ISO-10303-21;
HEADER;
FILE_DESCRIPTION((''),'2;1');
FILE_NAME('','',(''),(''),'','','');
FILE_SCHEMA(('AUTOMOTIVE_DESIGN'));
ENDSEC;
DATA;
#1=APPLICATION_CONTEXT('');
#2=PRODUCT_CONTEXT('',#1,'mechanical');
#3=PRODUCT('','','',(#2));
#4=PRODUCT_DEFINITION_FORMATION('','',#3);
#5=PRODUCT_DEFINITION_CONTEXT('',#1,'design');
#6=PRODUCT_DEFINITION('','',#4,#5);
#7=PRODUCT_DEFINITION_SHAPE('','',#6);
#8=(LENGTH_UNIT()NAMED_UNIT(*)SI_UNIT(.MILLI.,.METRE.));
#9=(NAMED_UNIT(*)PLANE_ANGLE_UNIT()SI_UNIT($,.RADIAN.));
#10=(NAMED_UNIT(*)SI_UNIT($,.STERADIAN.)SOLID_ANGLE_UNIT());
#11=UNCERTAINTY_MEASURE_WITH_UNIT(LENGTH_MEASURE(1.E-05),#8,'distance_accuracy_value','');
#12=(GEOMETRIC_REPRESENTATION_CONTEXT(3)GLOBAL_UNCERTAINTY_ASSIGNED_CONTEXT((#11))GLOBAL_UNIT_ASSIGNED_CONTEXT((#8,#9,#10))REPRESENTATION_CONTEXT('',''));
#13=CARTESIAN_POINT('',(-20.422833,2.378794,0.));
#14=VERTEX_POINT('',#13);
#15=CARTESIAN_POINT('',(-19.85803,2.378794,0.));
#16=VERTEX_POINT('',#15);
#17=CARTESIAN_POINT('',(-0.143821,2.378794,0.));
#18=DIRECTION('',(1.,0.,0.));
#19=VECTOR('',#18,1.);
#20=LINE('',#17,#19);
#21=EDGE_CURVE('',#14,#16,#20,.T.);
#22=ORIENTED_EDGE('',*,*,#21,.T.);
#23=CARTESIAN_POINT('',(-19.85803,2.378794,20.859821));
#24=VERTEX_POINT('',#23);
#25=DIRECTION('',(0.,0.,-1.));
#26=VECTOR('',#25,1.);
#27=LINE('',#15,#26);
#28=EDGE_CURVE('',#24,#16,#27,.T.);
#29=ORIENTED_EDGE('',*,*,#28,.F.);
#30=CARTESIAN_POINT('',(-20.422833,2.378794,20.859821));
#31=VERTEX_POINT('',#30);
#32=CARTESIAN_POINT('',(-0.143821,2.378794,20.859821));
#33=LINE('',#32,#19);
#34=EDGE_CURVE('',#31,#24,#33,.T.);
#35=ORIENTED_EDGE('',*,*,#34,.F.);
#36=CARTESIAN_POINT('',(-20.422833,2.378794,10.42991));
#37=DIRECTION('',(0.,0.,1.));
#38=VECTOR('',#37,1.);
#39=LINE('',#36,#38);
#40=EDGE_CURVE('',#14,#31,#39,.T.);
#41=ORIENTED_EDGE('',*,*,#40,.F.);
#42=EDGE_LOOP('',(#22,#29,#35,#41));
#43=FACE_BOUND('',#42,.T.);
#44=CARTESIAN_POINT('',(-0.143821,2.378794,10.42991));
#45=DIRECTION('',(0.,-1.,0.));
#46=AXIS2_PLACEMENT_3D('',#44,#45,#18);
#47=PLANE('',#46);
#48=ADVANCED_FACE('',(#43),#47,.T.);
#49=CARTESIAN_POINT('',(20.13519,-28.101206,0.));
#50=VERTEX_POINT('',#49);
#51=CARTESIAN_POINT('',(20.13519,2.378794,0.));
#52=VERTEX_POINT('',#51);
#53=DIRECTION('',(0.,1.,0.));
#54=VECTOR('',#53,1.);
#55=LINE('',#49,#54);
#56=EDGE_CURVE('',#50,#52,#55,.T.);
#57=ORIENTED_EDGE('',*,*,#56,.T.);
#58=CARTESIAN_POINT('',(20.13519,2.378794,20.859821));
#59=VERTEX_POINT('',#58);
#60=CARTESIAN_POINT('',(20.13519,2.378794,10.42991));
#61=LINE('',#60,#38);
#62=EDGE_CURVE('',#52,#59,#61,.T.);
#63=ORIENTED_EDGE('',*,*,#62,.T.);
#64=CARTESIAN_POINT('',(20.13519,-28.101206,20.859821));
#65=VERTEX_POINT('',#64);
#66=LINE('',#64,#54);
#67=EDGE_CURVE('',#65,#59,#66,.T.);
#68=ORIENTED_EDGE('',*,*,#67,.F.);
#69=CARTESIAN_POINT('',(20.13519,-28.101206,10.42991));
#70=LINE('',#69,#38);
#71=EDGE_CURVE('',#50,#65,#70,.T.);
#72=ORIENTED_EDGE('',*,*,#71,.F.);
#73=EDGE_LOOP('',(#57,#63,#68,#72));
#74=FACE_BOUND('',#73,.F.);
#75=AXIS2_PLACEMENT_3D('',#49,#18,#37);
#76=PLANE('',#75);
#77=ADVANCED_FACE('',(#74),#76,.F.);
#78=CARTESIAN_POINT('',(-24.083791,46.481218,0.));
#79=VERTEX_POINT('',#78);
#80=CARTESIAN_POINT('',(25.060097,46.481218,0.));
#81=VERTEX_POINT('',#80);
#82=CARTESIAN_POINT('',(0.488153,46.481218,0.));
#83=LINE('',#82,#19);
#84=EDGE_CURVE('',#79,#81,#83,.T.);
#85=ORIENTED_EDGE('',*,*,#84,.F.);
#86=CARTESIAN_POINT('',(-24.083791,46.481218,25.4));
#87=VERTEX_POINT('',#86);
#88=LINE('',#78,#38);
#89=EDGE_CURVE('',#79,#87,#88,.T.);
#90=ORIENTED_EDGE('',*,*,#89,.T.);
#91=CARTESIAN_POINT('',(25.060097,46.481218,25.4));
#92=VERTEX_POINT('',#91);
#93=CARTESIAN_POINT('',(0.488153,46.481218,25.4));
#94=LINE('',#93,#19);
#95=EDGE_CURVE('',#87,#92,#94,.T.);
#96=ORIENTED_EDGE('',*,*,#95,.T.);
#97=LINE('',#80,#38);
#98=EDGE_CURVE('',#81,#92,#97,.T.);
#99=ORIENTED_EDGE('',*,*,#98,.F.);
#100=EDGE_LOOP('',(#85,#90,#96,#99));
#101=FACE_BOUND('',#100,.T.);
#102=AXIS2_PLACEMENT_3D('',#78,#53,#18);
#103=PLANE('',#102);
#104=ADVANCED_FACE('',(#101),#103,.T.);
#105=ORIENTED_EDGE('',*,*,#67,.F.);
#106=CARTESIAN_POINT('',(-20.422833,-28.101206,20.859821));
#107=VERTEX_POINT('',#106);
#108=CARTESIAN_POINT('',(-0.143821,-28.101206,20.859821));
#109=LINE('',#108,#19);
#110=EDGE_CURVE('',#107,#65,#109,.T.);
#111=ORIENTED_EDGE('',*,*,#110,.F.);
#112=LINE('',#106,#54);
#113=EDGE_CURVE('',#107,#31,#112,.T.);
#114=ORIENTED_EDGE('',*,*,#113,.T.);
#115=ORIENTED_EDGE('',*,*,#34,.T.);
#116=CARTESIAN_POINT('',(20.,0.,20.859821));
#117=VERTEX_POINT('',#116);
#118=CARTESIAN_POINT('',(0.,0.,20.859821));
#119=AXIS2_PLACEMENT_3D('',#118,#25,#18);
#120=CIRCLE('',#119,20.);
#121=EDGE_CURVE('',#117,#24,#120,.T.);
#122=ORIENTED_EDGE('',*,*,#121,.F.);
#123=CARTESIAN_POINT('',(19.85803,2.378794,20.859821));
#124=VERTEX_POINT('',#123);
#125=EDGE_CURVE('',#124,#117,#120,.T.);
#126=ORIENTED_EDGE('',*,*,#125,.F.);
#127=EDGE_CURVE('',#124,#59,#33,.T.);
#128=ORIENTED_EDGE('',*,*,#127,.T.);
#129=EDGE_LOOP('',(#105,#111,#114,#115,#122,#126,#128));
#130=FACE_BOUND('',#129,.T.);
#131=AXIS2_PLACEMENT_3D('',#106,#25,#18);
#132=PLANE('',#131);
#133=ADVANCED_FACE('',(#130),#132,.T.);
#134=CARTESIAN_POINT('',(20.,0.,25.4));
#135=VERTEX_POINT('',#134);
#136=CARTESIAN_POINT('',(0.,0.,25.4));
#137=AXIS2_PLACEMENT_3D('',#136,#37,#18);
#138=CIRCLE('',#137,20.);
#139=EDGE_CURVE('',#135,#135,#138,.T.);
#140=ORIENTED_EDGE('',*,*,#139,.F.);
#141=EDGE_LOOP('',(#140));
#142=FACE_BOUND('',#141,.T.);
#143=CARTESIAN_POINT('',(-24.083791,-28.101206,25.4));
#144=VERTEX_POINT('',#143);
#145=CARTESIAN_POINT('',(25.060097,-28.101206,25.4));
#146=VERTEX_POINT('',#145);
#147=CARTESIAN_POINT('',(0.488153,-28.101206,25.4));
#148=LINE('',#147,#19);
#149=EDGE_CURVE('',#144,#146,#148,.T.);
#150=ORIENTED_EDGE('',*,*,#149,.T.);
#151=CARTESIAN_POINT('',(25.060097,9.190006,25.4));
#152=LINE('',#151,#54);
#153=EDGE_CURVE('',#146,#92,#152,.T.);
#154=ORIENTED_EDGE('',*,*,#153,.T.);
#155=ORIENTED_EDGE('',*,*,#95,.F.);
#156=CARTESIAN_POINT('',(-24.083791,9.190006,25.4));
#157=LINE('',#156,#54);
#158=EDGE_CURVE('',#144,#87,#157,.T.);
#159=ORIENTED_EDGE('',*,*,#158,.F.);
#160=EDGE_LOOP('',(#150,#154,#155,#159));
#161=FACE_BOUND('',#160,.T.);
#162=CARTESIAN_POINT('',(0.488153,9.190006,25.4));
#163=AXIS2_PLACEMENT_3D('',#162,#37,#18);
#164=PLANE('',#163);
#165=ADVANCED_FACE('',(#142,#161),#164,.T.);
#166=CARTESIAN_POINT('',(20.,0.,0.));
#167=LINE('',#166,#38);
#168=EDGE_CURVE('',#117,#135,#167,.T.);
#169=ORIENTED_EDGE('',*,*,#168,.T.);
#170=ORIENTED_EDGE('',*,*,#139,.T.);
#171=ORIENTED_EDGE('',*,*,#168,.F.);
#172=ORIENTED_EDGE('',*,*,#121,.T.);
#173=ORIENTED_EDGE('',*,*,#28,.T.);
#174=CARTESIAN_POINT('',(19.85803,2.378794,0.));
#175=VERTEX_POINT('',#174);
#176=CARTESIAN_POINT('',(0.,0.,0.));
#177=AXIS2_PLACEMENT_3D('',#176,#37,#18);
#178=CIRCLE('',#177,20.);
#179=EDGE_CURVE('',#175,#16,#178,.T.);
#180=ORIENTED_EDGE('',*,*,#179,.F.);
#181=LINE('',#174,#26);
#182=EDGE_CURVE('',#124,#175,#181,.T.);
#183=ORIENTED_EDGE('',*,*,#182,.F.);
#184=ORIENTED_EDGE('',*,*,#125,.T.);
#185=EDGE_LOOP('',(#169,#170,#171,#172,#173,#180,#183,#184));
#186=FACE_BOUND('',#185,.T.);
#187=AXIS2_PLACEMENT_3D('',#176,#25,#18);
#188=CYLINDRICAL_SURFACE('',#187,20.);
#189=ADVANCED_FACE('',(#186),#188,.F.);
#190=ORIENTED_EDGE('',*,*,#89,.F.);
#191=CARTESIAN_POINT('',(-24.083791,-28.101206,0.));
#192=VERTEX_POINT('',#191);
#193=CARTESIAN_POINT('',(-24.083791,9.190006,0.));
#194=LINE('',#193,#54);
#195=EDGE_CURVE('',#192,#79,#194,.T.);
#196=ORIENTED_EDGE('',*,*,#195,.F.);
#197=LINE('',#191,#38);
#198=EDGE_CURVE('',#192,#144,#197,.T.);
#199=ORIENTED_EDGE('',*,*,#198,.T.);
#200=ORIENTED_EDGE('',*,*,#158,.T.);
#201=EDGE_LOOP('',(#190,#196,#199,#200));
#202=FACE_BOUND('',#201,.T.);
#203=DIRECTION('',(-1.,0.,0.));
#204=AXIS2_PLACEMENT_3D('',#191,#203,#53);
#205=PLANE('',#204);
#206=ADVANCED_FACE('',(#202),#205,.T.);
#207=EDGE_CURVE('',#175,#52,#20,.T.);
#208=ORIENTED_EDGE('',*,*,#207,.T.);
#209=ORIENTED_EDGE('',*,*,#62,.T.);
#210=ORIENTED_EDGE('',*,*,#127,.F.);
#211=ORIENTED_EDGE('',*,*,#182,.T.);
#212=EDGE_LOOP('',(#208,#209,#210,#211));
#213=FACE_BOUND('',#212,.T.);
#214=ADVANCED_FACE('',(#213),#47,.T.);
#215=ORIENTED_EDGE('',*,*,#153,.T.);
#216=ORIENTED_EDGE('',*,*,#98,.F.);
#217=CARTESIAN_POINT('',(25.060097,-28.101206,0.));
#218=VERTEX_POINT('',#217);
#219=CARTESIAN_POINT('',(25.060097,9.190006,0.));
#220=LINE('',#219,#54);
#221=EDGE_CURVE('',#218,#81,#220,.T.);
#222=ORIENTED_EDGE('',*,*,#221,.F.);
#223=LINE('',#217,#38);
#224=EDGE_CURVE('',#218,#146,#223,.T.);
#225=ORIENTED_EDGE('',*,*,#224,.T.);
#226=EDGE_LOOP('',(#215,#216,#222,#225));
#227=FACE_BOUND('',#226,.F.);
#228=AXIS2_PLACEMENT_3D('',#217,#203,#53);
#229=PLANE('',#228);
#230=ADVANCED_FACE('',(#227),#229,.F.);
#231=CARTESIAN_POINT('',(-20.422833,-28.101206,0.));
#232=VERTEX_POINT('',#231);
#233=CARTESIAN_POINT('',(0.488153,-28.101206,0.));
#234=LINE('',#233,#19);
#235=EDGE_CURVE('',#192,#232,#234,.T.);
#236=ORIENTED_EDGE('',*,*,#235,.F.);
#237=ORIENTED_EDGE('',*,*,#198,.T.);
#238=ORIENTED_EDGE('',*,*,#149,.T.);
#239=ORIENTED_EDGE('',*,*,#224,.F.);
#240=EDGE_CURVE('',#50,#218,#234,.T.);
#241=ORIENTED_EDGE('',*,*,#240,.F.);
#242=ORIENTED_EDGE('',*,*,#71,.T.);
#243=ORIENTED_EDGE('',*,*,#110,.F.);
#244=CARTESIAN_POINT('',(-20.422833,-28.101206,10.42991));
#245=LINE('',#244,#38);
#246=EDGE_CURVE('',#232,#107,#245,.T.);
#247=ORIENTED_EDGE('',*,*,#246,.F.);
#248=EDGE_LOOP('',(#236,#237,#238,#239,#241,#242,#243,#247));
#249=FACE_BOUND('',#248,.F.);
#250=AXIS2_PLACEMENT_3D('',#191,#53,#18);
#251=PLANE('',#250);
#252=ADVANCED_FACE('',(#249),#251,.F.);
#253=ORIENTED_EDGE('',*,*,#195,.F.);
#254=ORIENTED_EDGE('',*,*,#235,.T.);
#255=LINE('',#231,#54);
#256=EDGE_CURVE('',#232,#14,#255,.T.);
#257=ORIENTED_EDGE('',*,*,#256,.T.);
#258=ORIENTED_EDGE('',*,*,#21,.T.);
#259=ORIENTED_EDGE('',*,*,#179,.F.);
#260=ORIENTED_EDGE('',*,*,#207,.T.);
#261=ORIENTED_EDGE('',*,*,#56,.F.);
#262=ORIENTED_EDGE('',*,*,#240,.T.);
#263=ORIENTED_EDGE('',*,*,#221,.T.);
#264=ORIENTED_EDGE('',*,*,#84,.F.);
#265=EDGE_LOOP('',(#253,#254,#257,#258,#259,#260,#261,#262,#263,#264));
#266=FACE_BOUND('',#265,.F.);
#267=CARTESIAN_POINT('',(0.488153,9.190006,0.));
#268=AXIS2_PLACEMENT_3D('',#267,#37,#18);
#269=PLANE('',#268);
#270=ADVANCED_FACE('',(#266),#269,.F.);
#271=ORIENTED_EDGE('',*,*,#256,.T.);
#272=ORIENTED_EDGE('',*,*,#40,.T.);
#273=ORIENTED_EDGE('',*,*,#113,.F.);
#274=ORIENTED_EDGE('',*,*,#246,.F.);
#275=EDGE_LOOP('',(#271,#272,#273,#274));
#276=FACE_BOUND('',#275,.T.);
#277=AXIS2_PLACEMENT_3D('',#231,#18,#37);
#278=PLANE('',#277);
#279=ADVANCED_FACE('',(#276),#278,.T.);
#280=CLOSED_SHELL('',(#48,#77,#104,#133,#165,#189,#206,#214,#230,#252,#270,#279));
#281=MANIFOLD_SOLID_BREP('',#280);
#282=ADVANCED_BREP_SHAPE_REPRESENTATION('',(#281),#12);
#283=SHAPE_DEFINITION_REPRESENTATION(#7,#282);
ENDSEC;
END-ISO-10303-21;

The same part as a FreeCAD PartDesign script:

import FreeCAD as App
import Part
import Sketcher
from FreeCAD import Vector
Q = App.Units.Quantity

doc = App.newDocument("Part")
body = doc.addObject("PartDesign::Body", "Body")

# Sketch on XY plane
sketch1 = body.newObject("Sketcher::SketchObject", "Sketch")
sketch1.AttachmentSupport = (doc.getObject("XY_Plane"), [""])
sketch1.MapMode = "FlatFace"
sketch1.addGeometry([
    Part.LineSegment(Vector(-24, 46, 0), Vector(-24, -28, 0)),  # 0
    Part.LineSegment(Vector(-24, -28, 0), Vector(25, -28, 0)),  # 1
    Part.LineSegment(Vector(25, -28, 0), Vector(25, 46, 0)),  # 2
    Part.LineSegment(Vector(25, 46, 0), Vector(-24, 46, 0)),  # 3
    Part.Circle(Vector(0, 0, 0), Vector(0, 0, 1), 20),  # 4
], False)
sketch1.addConstraint([
    Sketcher.Constraint("Coincident", 0, 2, 1, 1),
    Sketcher.Constraint("Coincident", 1, 2, 2, 1),
    Sketcher.Constraint("Coincident", 2, 2, 3, 1),
    Sketcher.Constraint("Coincident", 3, 2, 0, 1),
    Sketcher.Constraint("Vertical", 0),
    Sketcher.Constraint("Horizontal", 1),
    Sketcher.Constraint("Vertical", 2),
    Sketcher.Constraint("Horizontal", 3),
    Sketcher.Constraint("Coincident", 4, 3, -1, 1),
    Sketcher.Constraint("Diameter", 4, 40.0),
    Sketcher.Constraint("DistanceX", 1, 1, 1, 2, 49.143888),
    Sketcher.Constraint("DistanceY", 0, 2, 0, 1, 74.582424),
    Sketcher.Constraint("DistanceX", 0, 2, -1, 1, 24.083791),
    Sketcher.Constraint("DistanceY", -1, 1, 2, 2, 46.481218),
])
pad1 = body.newObject("PartDesign::Pad", "Pad")
pad1.Profile = sketch1
pad1.Length = Q("1 in")

# Sketch on XZ plane
sketch2 = body.newObject("Sketcher::SketchObject", "Sketch001")
sketch2.AttachmentSupport = (doc.getObject("XZ_Plane"), [""])
sketch2.MapMode = "FlatFace"
sketch2.AttachmentOffset = App.Placement(Vector(0, 0, 28.101206), App.Rotation())
sketch2.addGeometry([
    Part.LineSegment(Vector(-20, 21, 0), Vector(-20, 0, 0)),
    Part.LineSegment(Vector(-20, 0, 0), Vector(20, 0, 0)),
    Part.LineSegment(Vector(20, 0, 0), Vector(20, 21, 0)),
    Part.LineSegment(Vector(20, 21, 0), Vector(-20, 21, 0)),
], False)
sketch2.addConstraint([
    Sketcher.Constraint("Coincident", 0, 2, 1, 1),
    Sketcher.Constraint("Coincident", 1, 2, 2, 1),
    Sketcher.Constraint("Coincident", 2, 2, 3, 1),
    Sketcher.Constraint("Coincident", 3, 2, 0, 1),
    Sketcher.Constraint("Vertical", 0),
    Sketcher.Constraint("Horizontal", 1),
    Sketcher.Constraint("Vertical", 2),
    Sketcher.Constraint("Horizontal", 3),
    Sketcher.Constraint("PointOnObject", 0, 2, -1),
    Sketcher.Constraint("DistanceY", 0, 2, 0, 1, 20.859821),
    Sketcher.Constraint("DistanceX", 1, 1, 1, 2, 40.558023),
    Sketcher.Constraint("DistanceX", -1, 1, 1, 2, 20.13519),
])
pocket1 = body.newObject("PartDesign::Pocket", "Pocket")
pocket1.Profile = sketch2
pocket1.Length = Q("1.2 in")

doc.recompute()
